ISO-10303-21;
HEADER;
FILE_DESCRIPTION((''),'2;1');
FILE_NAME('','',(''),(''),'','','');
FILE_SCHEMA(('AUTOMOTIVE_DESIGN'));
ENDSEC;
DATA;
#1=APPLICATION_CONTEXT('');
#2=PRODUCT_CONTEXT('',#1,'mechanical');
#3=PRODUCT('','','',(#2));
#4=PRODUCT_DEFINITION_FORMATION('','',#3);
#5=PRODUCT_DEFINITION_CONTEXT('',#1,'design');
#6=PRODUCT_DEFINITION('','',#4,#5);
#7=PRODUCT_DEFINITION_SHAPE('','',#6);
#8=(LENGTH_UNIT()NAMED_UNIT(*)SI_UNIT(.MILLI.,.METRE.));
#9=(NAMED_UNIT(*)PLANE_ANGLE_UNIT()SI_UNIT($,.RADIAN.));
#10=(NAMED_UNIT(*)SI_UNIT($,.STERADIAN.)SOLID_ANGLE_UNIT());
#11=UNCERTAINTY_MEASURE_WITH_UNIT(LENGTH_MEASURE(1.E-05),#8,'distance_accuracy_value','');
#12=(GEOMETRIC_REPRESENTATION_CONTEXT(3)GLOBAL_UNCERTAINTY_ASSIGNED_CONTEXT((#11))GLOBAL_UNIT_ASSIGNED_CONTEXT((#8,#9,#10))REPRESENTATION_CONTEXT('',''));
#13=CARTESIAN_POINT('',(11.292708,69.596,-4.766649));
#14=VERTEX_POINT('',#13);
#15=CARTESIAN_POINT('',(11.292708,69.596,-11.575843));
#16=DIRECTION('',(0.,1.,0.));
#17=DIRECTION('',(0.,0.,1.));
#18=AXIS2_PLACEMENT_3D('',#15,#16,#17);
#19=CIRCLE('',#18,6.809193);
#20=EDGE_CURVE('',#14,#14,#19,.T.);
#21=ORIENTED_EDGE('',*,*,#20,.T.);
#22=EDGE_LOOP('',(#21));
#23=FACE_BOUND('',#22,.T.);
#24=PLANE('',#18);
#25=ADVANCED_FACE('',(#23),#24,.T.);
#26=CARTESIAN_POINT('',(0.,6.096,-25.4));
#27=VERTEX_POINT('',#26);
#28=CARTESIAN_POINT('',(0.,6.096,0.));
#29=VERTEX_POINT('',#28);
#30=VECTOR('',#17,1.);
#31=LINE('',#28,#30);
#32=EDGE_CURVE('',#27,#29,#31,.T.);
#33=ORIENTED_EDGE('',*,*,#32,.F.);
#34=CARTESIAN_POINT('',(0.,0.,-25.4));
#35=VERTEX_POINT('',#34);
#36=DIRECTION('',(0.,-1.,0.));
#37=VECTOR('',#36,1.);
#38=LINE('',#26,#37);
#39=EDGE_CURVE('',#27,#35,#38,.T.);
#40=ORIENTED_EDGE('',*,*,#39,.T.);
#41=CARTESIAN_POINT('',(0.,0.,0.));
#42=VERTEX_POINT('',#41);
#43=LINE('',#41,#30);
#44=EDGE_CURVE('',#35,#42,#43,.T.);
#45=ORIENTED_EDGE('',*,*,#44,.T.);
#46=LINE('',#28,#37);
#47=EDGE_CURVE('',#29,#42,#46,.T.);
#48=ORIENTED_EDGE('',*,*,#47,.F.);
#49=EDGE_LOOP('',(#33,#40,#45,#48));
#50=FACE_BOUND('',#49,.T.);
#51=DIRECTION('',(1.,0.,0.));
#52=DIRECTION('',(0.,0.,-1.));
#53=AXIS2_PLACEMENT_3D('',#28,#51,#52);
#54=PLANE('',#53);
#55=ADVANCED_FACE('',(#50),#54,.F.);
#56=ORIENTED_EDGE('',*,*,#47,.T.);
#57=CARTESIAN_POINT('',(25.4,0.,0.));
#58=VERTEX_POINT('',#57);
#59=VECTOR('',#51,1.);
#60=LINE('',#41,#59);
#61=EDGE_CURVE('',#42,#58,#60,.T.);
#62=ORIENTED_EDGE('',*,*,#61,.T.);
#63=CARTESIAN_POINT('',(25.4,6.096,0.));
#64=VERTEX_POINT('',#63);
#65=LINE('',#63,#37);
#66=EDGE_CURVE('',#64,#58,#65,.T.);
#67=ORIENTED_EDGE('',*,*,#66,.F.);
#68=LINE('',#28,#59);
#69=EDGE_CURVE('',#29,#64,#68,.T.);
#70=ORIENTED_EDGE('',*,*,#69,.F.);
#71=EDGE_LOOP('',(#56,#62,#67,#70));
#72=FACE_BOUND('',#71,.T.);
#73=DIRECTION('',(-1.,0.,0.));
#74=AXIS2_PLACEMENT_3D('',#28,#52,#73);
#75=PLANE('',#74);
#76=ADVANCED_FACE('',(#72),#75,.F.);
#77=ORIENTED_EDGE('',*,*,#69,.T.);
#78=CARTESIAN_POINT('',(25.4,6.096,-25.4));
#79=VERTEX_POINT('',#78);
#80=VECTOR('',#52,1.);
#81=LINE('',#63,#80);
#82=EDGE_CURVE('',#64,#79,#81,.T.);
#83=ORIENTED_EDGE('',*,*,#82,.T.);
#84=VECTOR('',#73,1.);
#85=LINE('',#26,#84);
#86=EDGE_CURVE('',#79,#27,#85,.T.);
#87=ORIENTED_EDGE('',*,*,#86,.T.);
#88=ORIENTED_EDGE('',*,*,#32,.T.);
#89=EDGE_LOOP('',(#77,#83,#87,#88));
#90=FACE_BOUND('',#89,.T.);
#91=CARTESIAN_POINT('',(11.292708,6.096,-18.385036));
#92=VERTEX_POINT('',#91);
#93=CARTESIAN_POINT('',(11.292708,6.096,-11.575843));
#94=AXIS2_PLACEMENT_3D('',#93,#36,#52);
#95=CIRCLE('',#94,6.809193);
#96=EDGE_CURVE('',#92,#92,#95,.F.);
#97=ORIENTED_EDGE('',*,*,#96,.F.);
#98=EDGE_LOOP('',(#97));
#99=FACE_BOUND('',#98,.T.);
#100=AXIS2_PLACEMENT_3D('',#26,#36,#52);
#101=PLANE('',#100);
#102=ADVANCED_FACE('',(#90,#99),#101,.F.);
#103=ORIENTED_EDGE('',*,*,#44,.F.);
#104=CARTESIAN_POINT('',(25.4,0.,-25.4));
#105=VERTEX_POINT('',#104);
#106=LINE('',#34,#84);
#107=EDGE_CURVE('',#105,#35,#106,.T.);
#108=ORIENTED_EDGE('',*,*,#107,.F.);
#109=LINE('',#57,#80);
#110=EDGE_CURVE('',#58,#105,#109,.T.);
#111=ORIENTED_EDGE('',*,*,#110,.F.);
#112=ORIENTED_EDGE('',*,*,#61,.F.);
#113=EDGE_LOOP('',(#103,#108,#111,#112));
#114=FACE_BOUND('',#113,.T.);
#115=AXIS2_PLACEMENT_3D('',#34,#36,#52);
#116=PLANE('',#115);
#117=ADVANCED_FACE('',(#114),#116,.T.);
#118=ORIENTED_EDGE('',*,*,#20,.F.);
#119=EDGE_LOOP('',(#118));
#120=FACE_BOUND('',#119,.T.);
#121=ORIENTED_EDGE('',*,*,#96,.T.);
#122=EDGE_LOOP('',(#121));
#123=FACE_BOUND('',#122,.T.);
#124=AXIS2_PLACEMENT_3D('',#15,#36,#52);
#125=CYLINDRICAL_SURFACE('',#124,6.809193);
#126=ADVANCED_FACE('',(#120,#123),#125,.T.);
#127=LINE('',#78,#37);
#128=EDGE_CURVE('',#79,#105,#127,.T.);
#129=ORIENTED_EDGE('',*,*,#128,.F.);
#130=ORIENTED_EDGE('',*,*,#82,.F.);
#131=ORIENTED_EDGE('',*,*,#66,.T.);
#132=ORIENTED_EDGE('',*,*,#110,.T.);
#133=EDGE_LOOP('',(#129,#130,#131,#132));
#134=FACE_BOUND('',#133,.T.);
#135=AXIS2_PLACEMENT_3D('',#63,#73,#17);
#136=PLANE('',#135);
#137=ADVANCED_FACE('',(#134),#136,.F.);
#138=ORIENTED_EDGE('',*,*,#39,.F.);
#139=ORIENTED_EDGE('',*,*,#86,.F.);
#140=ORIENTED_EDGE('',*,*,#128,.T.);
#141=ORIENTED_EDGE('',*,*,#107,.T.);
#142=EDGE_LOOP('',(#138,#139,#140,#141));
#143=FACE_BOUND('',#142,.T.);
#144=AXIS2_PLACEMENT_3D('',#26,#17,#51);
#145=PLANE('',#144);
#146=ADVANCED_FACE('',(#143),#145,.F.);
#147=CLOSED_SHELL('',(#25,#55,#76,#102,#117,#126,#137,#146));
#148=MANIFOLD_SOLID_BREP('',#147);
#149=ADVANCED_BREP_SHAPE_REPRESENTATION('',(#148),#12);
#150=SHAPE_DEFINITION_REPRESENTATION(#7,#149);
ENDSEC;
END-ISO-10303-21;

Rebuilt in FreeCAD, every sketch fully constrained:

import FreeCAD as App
import Part
import Sketcher
from FreeCAD import Vector
Q = App.Units.Quantity


def add_polygon(sketch, points):
    """Adds a closed chain of lines whose ends are joined by coincident constraints."""
    first, n = sketch.GeometryCount, len(points)
    for a, b in zip(points, points[1:] + points[:1]):
        sketch.addGeometry(Part.LineSegment(App.Vector(*a, 0), App.Vector(*b, 0)), False)
    for i in range(n):
        sketch.addConstraint(Sketcher.Constraint("Coincident", first + i, 2, first + (i + 1) % n, 1))

doc = App.newDocument("Part")
params = doc.addObject("Spreadsheet::Sheet", "Params")
for row, (alias, value) in enumerate([
    ("sketch1_width", "1 in"),
    ("pad1_length", "0.24 in"),
    ("pad2_length", "2.5 in"),
], start=1):
    params.set(f"A{row}", alias)
    params.set(f"B{row}", "=" + value)
    params.setAlias(f"B{row}", alias)

body = doc.addObject("PartDesign::Body", "Body")

sketch1 = doc.addObject("Sketcher::SketchObject", "Sketch")
body.addObject(sketch1)
sketch1.AttachmentSupport = (doc.XZ_Plane, [""])
sketch1.MapMode = "FlatFace"
add_polygon(sketch1, [(0, -25), (0, 0), (25, 0), (25, -25)])
sketch1.addConstraint([
    Sketcher.Constraint("Vertical", 0),
    Sketcher.Constraint("Horizontal", 1),
    Sketcher.Constraint("Vertical", 2),
    Sketcher.Constraint("Horizontal", 3),
    Sketcher.Constraint("Coincident", 0, 2, -1, 1),
    Sketcher.Constraint("Equal", 3, 0),
    Sketcher.Constraint("DistanceX", 1, 1, 1, 2, Q("1 in")),
])
sketch1.setExpression("Constraints[10]", "Params.sketch1_width")
pad1 = doc.addObject("PartDesign::Pad", "Pad")
body.addObject(pad1)
pad1.Profile = sketch1
pad1.setExpression("Length", "Params.pad1_length")
pad1.Reversed = True

sketch2 = doc.addObject("Sketcher::SketchObject", "Sketch001")
body.addObject(sketch2)
sketch2.AttachmentSupport = (doc.XZ_Plane, [""])
sketch2.MapMode = "FlatFace"
sketch2.AttachmentOffset = App.Placement(Vector(0, 0, -0.24 * 25.4), App.Rotation())
sketch2.addGeometry(Part.Circle(Vector(11, -12, 0), Vector(0, 0, 1), 7), False)
sketch2.addConstraint([
    Sketcher.Constraint("Diameter", 0, Q("13.618387 mm")),
    Sketcher.Constraint("DistanceX", -1, 1, 0, 3, Q("11.292708 mm")),
    Sketcher.Constraint("DistanceY", 0, 3, -1, 1, Q("11.575843 mm")),
])
pad2 = doc.addObject("PartDesign::Pad", "Pad001")
body.addObject(pad2)
pad2.Profile = sketch2
pad2.setExpression("Length", "Params.pad2_length")
pad2.Reversed = True

doc.recompute()
